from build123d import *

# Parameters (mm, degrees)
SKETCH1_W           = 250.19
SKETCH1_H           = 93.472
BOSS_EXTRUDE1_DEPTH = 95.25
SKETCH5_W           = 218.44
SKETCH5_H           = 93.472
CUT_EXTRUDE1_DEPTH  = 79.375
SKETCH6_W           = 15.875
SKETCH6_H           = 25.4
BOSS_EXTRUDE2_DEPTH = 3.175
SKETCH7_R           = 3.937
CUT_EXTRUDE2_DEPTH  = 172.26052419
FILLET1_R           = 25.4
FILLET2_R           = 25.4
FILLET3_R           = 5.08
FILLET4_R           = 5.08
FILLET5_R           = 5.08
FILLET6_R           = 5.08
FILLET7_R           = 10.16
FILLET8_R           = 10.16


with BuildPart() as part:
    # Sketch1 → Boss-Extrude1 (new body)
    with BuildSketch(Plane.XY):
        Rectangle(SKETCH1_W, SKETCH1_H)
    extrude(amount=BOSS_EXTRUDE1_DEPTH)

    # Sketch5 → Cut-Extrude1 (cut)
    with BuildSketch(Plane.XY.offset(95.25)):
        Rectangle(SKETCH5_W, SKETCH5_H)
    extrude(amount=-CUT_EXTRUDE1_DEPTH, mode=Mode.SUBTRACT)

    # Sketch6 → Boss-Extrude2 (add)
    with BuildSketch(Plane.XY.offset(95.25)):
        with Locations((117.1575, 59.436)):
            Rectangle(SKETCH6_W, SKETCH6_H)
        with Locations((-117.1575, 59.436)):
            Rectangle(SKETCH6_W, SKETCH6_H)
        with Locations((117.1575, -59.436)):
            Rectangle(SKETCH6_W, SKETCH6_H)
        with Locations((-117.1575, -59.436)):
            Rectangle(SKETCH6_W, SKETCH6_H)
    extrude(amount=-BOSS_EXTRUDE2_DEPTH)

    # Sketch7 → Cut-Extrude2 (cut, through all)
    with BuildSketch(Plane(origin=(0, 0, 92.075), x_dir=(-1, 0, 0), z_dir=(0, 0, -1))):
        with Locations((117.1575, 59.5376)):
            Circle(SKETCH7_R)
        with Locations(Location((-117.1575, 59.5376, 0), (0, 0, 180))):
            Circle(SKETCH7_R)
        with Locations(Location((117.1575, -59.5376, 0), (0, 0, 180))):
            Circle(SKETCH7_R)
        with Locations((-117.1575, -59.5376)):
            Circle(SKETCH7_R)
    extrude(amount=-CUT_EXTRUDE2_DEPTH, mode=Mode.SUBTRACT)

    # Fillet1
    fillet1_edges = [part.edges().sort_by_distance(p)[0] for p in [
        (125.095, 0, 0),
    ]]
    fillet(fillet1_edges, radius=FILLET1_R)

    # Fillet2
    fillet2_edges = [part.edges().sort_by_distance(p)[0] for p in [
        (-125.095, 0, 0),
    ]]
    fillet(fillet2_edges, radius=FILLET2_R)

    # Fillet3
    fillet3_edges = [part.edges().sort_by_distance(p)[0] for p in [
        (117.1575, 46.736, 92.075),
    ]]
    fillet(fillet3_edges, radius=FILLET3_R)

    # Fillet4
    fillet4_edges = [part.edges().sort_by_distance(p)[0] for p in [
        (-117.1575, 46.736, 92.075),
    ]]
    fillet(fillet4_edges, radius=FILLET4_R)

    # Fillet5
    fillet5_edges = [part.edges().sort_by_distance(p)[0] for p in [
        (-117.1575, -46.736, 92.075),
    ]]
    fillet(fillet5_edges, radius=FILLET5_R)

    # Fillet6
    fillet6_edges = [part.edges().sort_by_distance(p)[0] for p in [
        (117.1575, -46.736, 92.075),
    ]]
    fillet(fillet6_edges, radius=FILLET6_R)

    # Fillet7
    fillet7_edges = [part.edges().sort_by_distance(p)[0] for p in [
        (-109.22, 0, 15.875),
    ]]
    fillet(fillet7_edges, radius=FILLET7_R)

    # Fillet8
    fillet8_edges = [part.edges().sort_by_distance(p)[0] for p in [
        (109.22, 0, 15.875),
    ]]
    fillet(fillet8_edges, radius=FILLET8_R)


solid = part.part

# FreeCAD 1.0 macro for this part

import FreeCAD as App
import Part
import Sketcher
from FreeCAD import Vector
Q = App.Units.Quantity


def edges_at(feature, points):
    """Names of the edges that pass closest to the given points."""
    edges = feature.Shape.Edges
    near = lambda p: min(range(len(edges)), key=lambda i: edges[i].distToShape(Part.Vertex(*p))[0])
    return sorted({f"Edge{near(p) + 1}" for p in points})


def add_polygon(sketch, points):
    """Adds a closed chain of lines whose ends are joined by coincident constraints."""
    first, n = sketch.GeometryCount, len(points)
    for a, b in zip(points, points[1:] + points[:1]):
        sketch.addGeometry(Part.LineSegment(App.Vector(*a, 0), App.Vector(*b, 0)), False)
    for i in range(n):
        sketch.addConstraint(Sketcher.Constraint("Coincident", first + i, 2, first + (i + 1) % n, 1))

doc = App.newDocument("Part")
params = doc.addObject("Spreadsheet::Sheet", "Params")
for row, (alias, value) in enumerate([
    ("sketch1_width", "9.85 in"),
    ("sketch1_height", "3.68 in"),
    ("pad1_length", "3.75 in"),
    ("sketch2_width", "8.6 in"),
    ("sketch2_height", "3.68 in"),
    ("pocket1_length", "3.125 in"),
    ("sketch3_height", "1 in"),
    ("sketch3_width", "0.625 in"),
    ("pad2_length", "0.125 in"),
    ("sketch4_diameter", "0.31 in"),
    ("fillet_radius", "1 in"),
    ("fillet2_radius", "1 in"),
    ("fillet3_radius", "0.2 in"),
    ("fillet4_radius", "0.2 in"),
    ("fillet5_radius", "0.2 in"),
    ("fillet6_radius", "0.2 in"),
    ("fillet7_radius", "0.4 in"),
    ("fillet8_radius", "0.4 in"),
], start=1):
    params.set(f"A{row}", alias)
    params.set(f"B{row}", "=" + value)
    params.setAlias(f"B{row}", alias)

body = doc.addObject("PartDesign::Body", "Body")

# Sketch on XY plane
sketch1 = body.newObject("Sketcher::SketchObject", "Sketch")
sketch1.AttachmentSupport = (doc.getObject("XY_Plane"), [""])
sketch1.MapMode = "FlatFace"
add_polygon(sketch1, [(-125, 47), (-125, -47), (125, -47), (125, 47)])  # lines 0-3
sketch1.addConstraint([
    Sketcher.Constraint("Vertical", 0),
    Sketcher.Constraint("Horizontal", 1),
    Sketcher.Constraint("Vertical", 2),
    Sketcher.Constraint("Horizontal", 3),
    Sketcher.Constraint("Symmetric", 0, 2, 2, 2, -1, 1),
    Sketcher.Constraint("DistanceX", 1, 1, 1, 2, Q("9.85 in")),
    Sketcher.Constraint("DistanceY", 0, 2, 0, 1, Q("3.68 in")),
])
sketch1.setExpression("Constraints[9]", "Params.sketch1_width")
sketch1.setExpression("Constraints[10]", "Params.sketch1_height")
pad1 = body.newObject("PartDesign::Pad", "Pad")
pad1.Profile = sketch1
pad1.setExpression("Length", "Params.pad1_length")

# Sketch on XY plane
sketch2 = body.newObject("Sketcher::SketchObject", "Sketch001")
sketch2.AttachmentSupport = (doc.getObject("XY_Plane"), [""])
sketch2.MapMode = "FlatFace"
sketch2.AttachmentOffset = App.Placement(Vector(0, 0, 3.75 * 25.4), App.Rotation())
add_polygon(sketch2, [(-109, 47), (-109, -47), (109, -47), (109, 47)])  # lines 0-3
sketch2.addConstraint([
    Sketcher.Constraint("Vertical", 0),
    Sketcher.Constraint("Horizontal", 1),
    Sketcher.Constraint("Vertical", 2),
    Sketcher.Constraint("Horizontal", 3),
    Sketcher.Constraint("Symmetric", 0, 2, 2, 2, -1, 1),
    Sketcher.Constraint("DistanceX", 1, 1, 1, 2, Q("8.6 in")),
    Sketcher.Constraint("DistanceY", 0, 2, 0, 1, Q("3.68 in")),
])
sketch2.setExpression("Constraints[9]", "Params.sketch2_width")
sketch2.setExpression("Constraints[10]", "Params.sketch2_height")
pocket1 = body.newObject("PartDesign::Pocket", "Pocket")
pocket1.Profile = sketch2
pocket1.setExpression("Length", "Params.pocket1_length")

# Sketch on XY plane
sketch3 = body.newObject("Sketcher::SketchObject", "Sketch002")
sketch3.AttachmentSupport = (doc.getObject("XY_Plane"), [""])
sketch3.MapMode = "FlatFace"
sketch3.AttachmentOffset = App.Placement(Vector(0, 0, 3.75 * 25.4), App.Rotation())
add_polygon(sketch3, [(109, 72), (109, 47), (125, 47), (125, 72)])  # lines 0-3
add_polygon(sketch3, [(-125, 72), (-125, 47), (-109, 47), (-109, 72)])  # lines 4-7
add_polygon(sketch3, [(109, -47), (109, -72), (125, -72), (125, -47)])  # lines 8-11
add_polygon(sketch3, [(-125, -47), (-125, -72), (-109, -72), (-109, -47)])  # lines 12-15
sketch3.addConstraint([
    Sketcher.Constraint("Vertical", 0),
    Sketcher.Constraint("Horizontal", 1),
    Sketcher.Constraint("Vertical", 2),
    Sketcher.Constraint("Horizontal", 3),
    Sketcher.Constraint("Vertical", 4),
    Sketcher.Constraint("Horizontal", 5),
    Sketcher.Constraint("Vertical", 6),
    Sketcher.Constraint("Horizontal", 7),
    Sketcher.Constraint("Vertical", 8),
    Sketcher.Constraint("Horizontal", 9),
    Sketcher.Constraint("Vertical", 10),
    Sketcher.Constraint("Horizontal", 11),
    Sketcher.Constraint("Vertical", 12),
    Sketcher.Constraint("Horizontal", 13),
    Sketcher.Constraint("Vertical", 14),
    Sketcher.Constraint("Horizontal", 15),
    Sketcher.Constraint("Symmetric", 6, 2, 8, 2, -1, 1),
    Sketcher.Constraint("Symmetric", 4, 2, 10, 2, -1, 1),
    Sketcher.Constraint("Symmetric", 2, 2, 12, 2, -1, 1),
    Sketcher.Constraint("Symmetric", 0, 2, 14, 2, -1, 1),
    Sketcher.Constraint("Symmetric", 1, 2, 4, 2, -2),
    Sketcher.Constraint("Symmetric", 3, 2, 6, 2, -2),
    Sketcher.Constraint("DistanceY", 0, 2, 0, 1, Q("1 in")),
    Sketcher.Constraint("DistanceX", -1, 1, 0, 2, Q("4.3 in")),
    Sketcher.Constraint("DistanceX", 1, 1, 1, 2, Q("0.625 in")),
    Sketcher.Constraint("DistanceY", -1, 1, 0, 2, Q("1.84 in")),
])
sketch3.setExpression("Constraints[38]", "Params.sketch3_height")
sketch3.setExpression("Constraints[40]", "Params.sketch3_width")
pad2 = body.newObject("PartDesign::Pad", "Pad001")
pad2.Profile = sketch3
pad2.setExpression("Length", "Params.pad2_length")
pad2.Reversed = True

# Sketch on XY plane
sketch4 = body.newObject("Sketcher::SketchObject", "Sketch003")
sketch4.AttachmentSupport = (doc.getObject("XY_Plane"), [""])
sketch4.MapMode = "FlatFace"
sketch4.AttachmentOffset = App.Placement(Vector(0, 0, 3.625 * 25.4), App.Rotation())
sketch4.addGeometry([
    Part.Circle(Vector(-117.2, 59.5, 0), Vector(0, 0, 1), 3.9),
    Part.Circle(Vector(117.2, 59.5, 0), Vector(0, 0, 1), 3.9),
    Part.Circle(Vector(-117.2, -59.5, 0), Vector(0, 0, 1), 3.9),
    Part.Circle(Vector(117.2, -59.5, 0), Vector(0, 0, 1), 3.9),
], False)
sketch4.addConstraint([
    Sketcher.Constraint("Equal", 0, 1),
    Sketcher.Constraint("Equal", 1, 2),
    Sketcher.Constraint("Equal", 2, 3),
    Sketcher.Constraint("Symmetric", 1, 3, 2, 3, -1, 1),
    Sketcher.Constraint("Symmetric", 0, 3, 3, 3, -1, 1),
    Sketcher.Constraint("Symmetric", 0, 3, 1, 3, -2),
    Sketcher.Constraint("Diameter", 0, Q("0.31 in")),
    Sketcher.Constraint("DistanceY", -1, 1, 0, 3, Q("2.344 in")),
    Sketcher.Constraint("DistanceX", 0, 3, 1, 3, Q("9.225 in")),
])
sketch4.setExpression("Constraints[6]", "Params.sketch4_diameter")
pocket2 = body.newObject("PartDesign::Pocket", "Pocket001")
pocket2.Profile = sketch4
pocket2.Type = "ThroughAll"
pocket2.Reversed = True
doc.recompute()

fillet = body.newObject("PartDesign::Fillet", "Fillet")
fillet.Base = (pocket2, edges_at(pocket2, [(125.095, 0, 0)]))
fillet.setExpression("Radius", "Params.fillet_radius")
doc.recompute()

fillet2 = body.newObject("PartDesign::Fillet", "Fillet001")
fillet2.Base = (fillet, edges_at(fillet, [(-125.095, 0, 0)]))
fillet2.setExpression("Radius", "Params.fillet2_radius")
doc.recompute()

fillet3 = body.newObject("PartDesign::Fillet", "Fillet002")
fillet3.Base = (fillet2, edges_at(fillet2, [(117.157, 46.736, 92.075)]))
fillet3.setExpression("Radius", "Params.fillet3_radius")
doc.recompute()

fillet4 = body.newObject("PartDesign::Fillet", "Fillet003")
fillet4.Base = (fillet3, edges_at(fillet3, [(-117.157, 46.736, 92.075)]))
fillet4.setExpression("Radius", "Params.fillet4_radius")
doc.recompute()

fillet5 = body.newObject("PartDesign::Fillet", "Fillet004")
fillet5.Base = (fillet4, edges_at(fillet4, [(-117.157, -46.736, 92.075)]))
fillet5.setExpression("Radius", "Params.fillet5_radius")
doc.recompute()

fillet6 = body.newObject("PartDesign::Fillet", "Fillet005")
fillet6.Base = (fillet5, edges_at(fillet5, [(117.157, -46.736, 92.075)]))
fillet6.setExpression("Radius", "Params.fillet6_radius")
doc.recompute()

fillet7 = body.newObject("PartDesign::Fillet", "Fillet006")
fillet7.Base = (fillet6, edges_at(fillet6, [(-109.22, 0, 15.875)]))
fillet7.setExpression("Radius", "Params.fillet7_radius")
doc.recompute()

fillet8 = body.newObject("PartDesign::Fillet", "Fillet007")
fillet8.Base = (fillet7, edges_at(fillet7, [(109.22, 0, 15.875)]))
fillet8.setExpression("Radius", "Params.fillet8_radius")

doc.recompute()
